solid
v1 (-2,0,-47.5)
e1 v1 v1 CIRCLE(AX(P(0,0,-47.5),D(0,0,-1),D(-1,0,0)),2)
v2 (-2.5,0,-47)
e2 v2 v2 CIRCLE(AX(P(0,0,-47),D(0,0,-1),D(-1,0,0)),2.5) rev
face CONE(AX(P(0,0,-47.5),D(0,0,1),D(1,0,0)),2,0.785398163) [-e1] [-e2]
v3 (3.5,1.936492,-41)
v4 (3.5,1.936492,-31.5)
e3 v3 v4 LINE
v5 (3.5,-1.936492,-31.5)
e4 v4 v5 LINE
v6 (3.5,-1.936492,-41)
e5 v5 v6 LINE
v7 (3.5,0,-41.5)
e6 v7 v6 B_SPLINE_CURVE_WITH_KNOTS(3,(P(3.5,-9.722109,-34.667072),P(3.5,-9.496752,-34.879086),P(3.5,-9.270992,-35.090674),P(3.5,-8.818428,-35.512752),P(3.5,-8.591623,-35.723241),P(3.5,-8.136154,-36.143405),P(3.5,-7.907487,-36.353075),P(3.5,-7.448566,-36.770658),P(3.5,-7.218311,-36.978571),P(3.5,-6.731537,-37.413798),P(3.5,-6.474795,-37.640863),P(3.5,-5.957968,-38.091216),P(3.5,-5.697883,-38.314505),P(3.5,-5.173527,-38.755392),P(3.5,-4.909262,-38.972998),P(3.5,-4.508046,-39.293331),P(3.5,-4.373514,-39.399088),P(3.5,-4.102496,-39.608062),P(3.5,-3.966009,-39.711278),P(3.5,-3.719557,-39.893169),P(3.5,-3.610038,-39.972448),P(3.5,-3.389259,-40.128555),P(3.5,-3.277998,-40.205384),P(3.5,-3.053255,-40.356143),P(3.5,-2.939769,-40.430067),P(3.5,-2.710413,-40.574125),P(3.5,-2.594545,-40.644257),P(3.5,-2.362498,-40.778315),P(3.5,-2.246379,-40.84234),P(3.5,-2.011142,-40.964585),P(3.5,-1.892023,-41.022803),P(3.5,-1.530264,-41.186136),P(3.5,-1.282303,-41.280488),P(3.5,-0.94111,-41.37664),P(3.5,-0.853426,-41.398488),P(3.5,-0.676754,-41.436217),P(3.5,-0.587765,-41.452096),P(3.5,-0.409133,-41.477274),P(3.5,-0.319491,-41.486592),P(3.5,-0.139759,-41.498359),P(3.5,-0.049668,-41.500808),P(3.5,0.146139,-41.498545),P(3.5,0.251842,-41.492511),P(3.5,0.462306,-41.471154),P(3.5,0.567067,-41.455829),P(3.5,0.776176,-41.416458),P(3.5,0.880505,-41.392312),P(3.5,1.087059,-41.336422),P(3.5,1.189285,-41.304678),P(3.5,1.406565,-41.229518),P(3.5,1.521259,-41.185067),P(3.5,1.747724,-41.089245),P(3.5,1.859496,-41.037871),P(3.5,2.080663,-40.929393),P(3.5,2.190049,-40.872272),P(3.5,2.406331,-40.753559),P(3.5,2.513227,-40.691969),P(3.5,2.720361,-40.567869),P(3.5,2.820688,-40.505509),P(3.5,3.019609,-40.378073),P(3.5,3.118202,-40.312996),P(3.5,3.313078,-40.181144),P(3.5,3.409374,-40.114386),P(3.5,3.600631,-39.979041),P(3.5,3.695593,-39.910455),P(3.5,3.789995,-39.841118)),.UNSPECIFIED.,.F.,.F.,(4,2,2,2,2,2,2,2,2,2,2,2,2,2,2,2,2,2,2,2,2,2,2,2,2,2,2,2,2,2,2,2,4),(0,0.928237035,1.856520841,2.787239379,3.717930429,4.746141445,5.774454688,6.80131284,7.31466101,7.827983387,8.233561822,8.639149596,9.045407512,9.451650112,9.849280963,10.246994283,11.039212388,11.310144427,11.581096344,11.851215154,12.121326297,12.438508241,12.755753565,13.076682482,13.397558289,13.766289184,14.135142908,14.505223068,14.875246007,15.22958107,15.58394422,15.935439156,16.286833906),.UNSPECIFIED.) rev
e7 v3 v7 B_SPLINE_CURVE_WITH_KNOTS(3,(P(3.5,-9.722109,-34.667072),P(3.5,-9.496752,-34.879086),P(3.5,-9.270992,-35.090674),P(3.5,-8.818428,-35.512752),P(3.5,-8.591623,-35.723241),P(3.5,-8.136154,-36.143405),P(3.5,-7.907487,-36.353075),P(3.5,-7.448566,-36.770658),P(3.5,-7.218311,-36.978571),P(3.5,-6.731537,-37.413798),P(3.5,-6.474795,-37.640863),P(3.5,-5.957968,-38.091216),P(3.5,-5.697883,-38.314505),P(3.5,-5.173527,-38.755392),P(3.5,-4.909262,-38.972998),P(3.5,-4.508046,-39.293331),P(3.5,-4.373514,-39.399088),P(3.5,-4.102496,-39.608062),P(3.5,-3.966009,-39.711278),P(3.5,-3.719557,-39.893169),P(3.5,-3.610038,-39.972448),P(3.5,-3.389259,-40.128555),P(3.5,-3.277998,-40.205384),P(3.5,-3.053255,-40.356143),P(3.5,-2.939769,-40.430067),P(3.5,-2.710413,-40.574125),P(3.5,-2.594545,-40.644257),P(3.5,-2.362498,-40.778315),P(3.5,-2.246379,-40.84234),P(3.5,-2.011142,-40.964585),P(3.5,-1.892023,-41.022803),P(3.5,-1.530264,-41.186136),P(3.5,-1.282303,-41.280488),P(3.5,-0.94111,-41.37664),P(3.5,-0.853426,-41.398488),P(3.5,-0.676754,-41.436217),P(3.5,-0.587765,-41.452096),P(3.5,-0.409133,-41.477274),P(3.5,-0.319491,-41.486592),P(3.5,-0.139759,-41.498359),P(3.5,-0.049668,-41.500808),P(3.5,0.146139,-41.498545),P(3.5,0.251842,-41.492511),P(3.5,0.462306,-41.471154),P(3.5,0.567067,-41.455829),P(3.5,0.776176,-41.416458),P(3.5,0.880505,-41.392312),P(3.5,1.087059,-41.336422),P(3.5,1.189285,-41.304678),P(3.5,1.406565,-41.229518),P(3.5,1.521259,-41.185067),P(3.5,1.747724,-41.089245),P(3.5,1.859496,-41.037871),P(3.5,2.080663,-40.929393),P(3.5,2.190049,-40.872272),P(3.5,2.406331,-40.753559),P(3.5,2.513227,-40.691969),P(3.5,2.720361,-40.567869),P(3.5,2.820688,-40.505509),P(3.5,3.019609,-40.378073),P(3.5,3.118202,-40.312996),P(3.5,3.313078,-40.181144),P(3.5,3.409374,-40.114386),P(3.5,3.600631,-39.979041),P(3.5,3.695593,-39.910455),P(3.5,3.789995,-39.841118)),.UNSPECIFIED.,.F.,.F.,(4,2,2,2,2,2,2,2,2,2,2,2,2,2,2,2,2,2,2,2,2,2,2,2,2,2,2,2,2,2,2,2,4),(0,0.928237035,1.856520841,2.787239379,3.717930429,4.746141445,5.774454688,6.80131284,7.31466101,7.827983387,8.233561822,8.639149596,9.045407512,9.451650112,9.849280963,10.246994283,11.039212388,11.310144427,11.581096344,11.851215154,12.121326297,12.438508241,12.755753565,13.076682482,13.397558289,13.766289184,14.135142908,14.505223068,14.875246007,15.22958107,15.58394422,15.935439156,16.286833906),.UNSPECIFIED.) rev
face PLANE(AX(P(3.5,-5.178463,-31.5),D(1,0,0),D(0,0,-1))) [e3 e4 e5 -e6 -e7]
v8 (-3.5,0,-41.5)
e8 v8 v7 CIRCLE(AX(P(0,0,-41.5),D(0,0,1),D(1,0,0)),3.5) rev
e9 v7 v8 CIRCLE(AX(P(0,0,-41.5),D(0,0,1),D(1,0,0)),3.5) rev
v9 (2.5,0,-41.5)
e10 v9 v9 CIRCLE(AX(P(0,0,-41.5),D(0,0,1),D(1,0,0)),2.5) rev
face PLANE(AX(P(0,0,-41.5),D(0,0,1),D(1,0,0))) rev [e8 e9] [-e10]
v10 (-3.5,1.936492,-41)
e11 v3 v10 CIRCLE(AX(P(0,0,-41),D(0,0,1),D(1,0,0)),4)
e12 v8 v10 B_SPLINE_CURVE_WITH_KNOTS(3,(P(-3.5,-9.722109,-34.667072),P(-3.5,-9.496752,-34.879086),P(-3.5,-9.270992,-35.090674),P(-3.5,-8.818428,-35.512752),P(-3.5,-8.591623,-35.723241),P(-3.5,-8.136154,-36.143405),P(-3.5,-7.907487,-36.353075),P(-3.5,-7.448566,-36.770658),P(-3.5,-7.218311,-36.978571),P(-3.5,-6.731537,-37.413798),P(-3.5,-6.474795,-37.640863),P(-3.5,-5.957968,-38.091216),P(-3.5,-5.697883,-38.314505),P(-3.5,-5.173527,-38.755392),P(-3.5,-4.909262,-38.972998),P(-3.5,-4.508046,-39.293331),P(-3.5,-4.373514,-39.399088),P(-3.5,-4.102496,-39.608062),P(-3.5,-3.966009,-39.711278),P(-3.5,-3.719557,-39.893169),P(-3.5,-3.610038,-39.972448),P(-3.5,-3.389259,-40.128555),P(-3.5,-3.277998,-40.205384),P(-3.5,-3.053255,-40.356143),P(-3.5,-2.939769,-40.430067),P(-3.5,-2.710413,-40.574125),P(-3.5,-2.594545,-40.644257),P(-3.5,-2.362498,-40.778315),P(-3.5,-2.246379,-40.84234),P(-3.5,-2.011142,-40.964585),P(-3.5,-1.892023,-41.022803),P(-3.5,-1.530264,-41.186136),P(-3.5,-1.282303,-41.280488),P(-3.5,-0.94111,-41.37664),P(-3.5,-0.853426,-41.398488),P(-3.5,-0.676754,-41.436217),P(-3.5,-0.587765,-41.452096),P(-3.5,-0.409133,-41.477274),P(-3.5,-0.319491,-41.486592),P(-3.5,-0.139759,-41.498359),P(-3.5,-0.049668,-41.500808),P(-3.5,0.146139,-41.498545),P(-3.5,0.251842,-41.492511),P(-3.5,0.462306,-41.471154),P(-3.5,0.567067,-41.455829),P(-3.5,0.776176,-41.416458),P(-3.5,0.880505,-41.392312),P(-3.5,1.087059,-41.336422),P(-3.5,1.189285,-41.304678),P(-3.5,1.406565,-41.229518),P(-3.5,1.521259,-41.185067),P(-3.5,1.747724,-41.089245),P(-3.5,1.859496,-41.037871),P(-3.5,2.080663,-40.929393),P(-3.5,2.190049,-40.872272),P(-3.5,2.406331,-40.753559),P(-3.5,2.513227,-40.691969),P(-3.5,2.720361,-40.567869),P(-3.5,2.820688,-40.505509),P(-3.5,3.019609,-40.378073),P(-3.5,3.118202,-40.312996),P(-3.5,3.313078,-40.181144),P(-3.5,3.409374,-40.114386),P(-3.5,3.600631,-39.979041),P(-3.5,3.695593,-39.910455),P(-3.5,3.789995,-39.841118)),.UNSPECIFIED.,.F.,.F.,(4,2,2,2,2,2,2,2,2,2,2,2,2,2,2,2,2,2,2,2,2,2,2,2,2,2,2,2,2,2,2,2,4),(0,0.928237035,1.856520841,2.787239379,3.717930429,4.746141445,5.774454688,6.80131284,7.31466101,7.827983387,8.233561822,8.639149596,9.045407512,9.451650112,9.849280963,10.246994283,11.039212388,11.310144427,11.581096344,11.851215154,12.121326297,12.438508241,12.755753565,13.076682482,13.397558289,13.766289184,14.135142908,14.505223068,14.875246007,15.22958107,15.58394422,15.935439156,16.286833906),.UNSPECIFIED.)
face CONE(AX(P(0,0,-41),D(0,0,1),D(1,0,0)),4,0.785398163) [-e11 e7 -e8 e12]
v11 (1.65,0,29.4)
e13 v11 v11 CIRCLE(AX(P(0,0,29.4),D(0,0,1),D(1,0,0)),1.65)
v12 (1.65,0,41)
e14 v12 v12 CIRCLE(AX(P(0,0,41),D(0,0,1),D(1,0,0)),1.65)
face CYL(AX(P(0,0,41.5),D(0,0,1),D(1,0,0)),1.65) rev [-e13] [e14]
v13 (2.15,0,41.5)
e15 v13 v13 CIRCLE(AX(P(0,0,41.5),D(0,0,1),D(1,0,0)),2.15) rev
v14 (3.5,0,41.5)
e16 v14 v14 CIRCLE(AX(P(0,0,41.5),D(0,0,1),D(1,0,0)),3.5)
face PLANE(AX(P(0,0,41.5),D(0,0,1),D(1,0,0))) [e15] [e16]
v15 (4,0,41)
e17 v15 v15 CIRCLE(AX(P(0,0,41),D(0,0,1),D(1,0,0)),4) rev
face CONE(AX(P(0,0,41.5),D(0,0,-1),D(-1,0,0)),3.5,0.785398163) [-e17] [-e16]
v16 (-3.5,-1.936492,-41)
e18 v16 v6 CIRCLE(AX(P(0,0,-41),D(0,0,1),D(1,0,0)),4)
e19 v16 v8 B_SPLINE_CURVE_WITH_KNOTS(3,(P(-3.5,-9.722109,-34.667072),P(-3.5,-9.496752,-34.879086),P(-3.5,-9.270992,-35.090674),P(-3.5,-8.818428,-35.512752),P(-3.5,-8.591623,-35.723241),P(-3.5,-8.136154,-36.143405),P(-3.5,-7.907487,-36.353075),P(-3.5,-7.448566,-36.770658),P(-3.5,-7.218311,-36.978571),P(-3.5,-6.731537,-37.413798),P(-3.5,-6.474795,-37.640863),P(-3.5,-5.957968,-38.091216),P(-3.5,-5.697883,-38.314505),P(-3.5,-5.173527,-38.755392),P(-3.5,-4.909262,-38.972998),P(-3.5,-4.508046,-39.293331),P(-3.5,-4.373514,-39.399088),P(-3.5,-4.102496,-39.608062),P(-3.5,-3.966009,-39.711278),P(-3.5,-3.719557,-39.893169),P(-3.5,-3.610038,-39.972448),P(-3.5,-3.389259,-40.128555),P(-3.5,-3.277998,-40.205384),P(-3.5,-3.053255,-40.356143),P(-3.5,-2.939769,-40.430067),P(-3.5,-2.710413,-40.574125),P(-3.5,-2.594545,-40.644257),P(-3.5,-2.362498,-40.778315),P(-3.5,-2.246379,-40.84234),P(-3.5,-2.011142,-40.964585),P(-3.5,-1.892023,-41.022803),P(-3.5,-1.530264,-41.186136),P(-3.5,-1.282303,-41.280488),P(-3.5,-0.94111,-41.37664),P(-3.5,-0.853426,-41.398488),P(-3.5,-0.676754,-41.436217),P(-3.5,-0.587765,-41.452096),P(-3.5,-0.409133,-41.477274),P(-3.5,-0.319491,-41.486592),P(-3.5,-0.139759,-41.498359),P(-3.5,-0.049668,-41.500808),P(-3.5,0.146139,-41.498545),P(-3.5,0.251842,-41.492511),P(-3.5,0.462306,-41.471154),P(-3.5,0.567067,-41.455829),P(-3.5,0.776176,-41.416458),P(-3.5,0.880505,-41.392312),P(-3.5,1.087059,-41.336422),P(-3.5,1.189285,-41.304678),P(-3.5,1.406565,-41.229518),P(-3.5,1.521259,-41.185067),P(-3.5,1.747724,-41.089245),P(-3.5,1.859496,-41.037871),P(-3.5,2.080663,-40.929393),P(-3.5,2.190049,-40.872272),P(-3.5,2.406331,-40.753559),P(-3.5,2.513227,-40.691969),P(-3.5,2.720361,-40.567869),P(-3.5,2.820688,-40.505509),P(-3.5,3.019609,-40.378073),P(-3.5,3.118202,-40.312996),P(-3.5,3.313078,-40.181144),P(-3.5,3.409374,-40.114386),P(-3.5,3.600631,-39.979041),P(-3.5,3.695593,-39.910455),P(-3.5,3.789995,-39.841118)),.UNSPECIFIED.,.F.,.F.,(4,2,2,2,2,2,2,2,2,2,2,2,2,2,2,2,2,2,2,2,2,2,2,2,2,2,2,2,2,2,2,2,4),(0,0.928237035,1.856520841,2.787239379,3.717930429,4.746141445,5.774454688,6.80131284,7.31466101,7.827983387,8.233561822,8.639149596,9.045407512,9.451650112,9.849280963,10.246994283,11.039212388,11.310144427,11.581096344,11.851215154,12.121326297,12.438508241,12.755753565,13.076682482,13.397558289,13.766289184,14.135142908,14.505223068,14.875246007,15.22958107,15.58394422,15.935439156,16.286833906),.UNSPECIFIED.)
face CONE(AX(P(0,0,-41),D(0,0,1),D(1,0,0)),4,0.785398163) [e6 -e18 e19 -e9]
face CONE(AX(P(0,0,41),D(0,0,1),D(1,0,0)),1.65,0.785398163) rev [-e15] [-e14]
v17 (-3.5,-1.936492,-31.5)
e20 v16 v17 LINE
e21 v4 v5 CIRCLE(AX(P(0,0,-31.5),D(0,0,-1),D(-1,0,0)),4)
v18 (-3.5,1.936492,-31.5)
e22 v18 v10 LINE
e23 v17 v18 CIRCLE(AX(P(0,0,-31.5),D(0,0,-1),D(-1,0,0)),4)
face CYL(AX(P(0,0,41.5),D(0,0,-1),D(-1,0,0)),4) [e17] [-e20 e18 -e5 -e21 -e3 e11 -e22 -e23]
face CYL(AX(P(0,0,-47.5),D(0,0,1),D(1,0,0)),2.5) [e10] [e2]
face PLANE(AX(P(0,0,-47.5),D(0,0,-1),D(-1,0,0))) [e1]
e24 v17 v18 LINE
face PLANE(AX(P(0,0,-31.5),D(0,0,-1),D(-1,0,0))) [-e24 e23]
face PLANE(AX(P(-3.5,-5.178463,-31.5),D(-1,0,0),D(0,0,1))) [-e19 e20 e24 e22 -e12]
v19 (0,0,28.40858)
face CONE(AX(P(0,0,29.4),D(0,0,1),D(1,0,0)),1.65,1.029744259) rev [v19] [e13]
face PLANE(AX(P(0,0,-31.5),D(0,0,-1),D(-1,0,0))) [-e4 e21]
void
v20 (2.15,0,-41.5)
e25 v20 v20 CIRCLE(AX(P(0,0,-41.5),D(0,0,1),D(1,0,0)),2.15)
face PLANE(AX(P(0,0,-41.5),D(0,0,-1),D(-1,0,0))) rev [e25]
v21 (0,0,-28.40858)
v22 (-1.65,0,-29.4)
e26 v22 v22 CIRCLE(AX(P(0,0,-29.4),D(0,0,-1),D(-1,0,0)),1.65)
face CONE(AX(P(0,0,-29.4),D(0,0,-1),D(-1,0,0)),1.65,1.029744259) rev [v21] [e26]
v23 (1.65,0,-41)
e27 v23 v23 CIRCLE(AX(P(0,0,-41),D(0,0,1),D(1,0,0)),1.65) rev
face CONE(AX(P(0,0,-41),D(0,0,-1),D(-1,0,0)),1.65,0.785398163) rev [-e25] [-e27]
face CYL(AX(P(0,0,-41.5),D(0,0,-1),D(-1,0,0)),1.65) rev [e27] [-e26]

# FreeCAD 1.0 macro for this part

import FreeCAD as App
import Part
import Sketcher
from FreeCAD import Vector
Q = App.Units.Quantity


def edges_at(feature, points):
    """Names of the edges that pass closest to the given points."""
    edges = feature.Shape.Edges
    near = lambda p: min(range(len(edges)), key=lambda i: edges[i].distToShape(Part.Vertex(*p))[0])
    return sorted({f"Edge{near(p) + 1}" for p in points})

doc = App.newDocument("Part")
body = doc.addObject("PartDesign::Body", "Body")

# Sketch on XY plane
sketch1 = doc.addObject("Sketcher::SketchObject", "Sketch")
body.addObject(sketch1)
sketch1.AttachmentSupport = (doc.XY_Plane, [""])
sketch1.MapMode = "FlatFace"
sketch1.addGeometry(Part.Circle(Vector(0, 0, 0), Vector(0, 0, 1), 4), False)
sketch1.addConstraint(Sketcher.Constraint("Coincident", 0, 3, -1, 1))
sketch1.addConstraint(Sketcher.Constraint("Diameter", 0, Q("8 mm")))
pad1 = doc.addObject("PartDesign::Pad", "Pad")
body.addObject(pad1)
pad1.Profile = sketch1
pad1.Length = 83
pad1.Midplane = True

# Sketch on XY plane
sketch2 = doc.addObject("Sketcher::SketchObject", "Sketch001")
body.addObject(sketch2)
sketch2.AttachmentSupport = (doc.XY_Plane, [""])
sketch2.MapMode = "FlatFace"
sketch2.AttachmentOffset = App.Placement(Vector(0, 0, 41.5), App.Rotation())
sketch2.addGeometry(Part.Circle(Vector(0, 0, 0), Vector(0, 0, 1), 1.6), False)
sketch2.addConstraint(Sketcher.Constraint("Coincident", 0, 3, -1, 1))
sketch2.addConstraint(Sketcher.Constraint("Diameter", 0, Q("3.3 mm")))
doc.recompute()
hole = doc.addObject("PartDesign::Hole", "Hole")
body.addObject(hole)
hole.Profile = sketch2
hole.ThreadType = "None"
hole.Diameter = 3.3
hole.DepthType = "Dimension"
hole.Depth = 12.1
hole.DrillPoint = "Angled"
hole.DrillPointAngle = 118

# Sketch on XY plane
sketch3 = doc.addObject("Sketcher::SketchObject", "Sketch002")
body.addObject(sketch3)
sketch3.AttachmentSupport = (doc.XY_Plane, [""])
sketch3.MapMode = "FlatFace"
sketch3.AttachmentOffset = App.Placement(Vector(0, 0, -41.5), App.Rotation())
sketch3.addGeometry(Part.Circle(Vector(0, 0, 0), Vector(0, 0, 1), 1.6), False)
sketch3.addConstraint(Sketcher.Constraint("Coincident", 0, 3, -1, 1))
sketch3.addConstraint(Sketcher.Constraint("Diameter", 0, Q("3.3 mm")))
doc.recompute()
hole2 = doc.addObject("PartDesign::Hole", "Hole001")
body.addObject(hole2)
hole2.Profile = sketch3
hole2.ThreadType = "None"
hole2.Diameter = 3.3
hole2.DepthType = "Dimension"
hole2.Depth = 12.1
hole2.DrillPoint = "Angled"
hole2.DrillPointAngle = 118
hole2.Reversed = True
doc.recompute()

chamfer = doc.addObject("PartDesign::Chamfer", "Chamfer")
body.addObject(chamfer)
chamfer.Base = (hole2, edges_at(hole2, [
    (-4, 0, -41.5),
    (-4, 0, 41.5),
    (-1.65, 0, -41.5),
    (1.65, 0, 41.5),
]))
chamfer.Size = 0.5

# Sketch on XY plane
sketch4 = doc.addObject("Sketcher::SketchObject", "Sketch003")
body.addObject(sketch4)
sketch4.AttachmentSupport = (doc.XY_Plane, [""])
sketch4.MapMode = "FlatFace"
sketch4.AttachmentOffset = App.Placement(Vector(0, 0, -41.5), App.Rotation())
sketch4.addGeometry(Part.Circle(Vector(0, 0, 0), Vector(0, 0, 1), 2.5), False)
sketch4.addConstraint(Sketcher.Constraint("Coincident", 0, 3, -1, 1))
sketch4.addConstraint(Sketcher.Constraint("Diameter", 0, Q("5 mm")))
pad2 = doc.addObject("PartDesign::Pad", "Pad001")
body.addObject(pad2)
pad2.Profile = sketch4
pad2.Length = 6
pad2.Reversed = True
doc.recompute()

chamfer2 = doc.addObject("PartDesign::Chamfer", "Chamfer001")
body.addObject(chamfer2)
chamfer2.Base = (pad2, edges_at(pad2, [(-2.5, 0, -47.5)]))
chamfer2.Size = 0.5

# Sketch on XY plane
sketch5 = doc.addObject("Sketcher::SketchObject", "Sketch004")
body.addObject(sketch5)
sketch5.AttachmentSupport = (doc.XY_Plane, [""])
sketch5.MapMode = "FlatFace"
sketch5.AttachmentOffset = App.Placement(Vector(0, 0, -41.5), App.Rotation())
sketch5.addGeometry(Part.LineSegment(Vector(14, 14, 0), Vector(14, -14, 0)), False)
sketch5.addGeometry(Part.LineSegment(Vector(14, -14, 0), Vector(-14, -14, 0)), False)
sketch5.addGeometry(Part.LineSegment(Vector(-14, -14, 0), Vector(-14, 14, 0)), False)
sketch5.addGeometry(Part.LineSegment(Vector(-14, 14, 0), Vector(14, 14, 0)), False)
sketch5.addGeometry(Part.LineSegment(Vector(-4, -5, 0), Vector(4, -5, 0)), False)
sketch5.addGeometry(Part.LineSegment(Vector(4, -5, 0), Vector(4, 5, 0)), False)
sketch5.addGeometry(Part.LineSegment(Vector(4, 5, 0), Vector(-4, 5, 0)), False)
sketch5.addGeometry(Part.LineSegment(Vector(-4, 5, 0), Vector(-4, -5, 0)), False)
sketch5.addConstraint(Sketcher.Constraint("Coincident", 0, 2, 1, 1))
sketch5.addConstraint(Sketcher.Constraint("Coincident", 1, 2, 2, 1))
sketch5.addConstraint(Sketcher.Constraint("Coincident", 2, 2, 3, 1))
sketch5.addConstraint(Sketcher.Constraint("Coincident", 3, 2, 0, 1))
sketch5.addConstraint(Sketcher.Constraint("Coincident", 4, 2, 5, 1))
sketch5.addConstraint(Sketcher.Constraint("Coincident", 5, 2, 6, 1))
sketch5.addConstraint(Sketcher.Constraint("Coincident", 6, 2, 7, 1))
sketch5.addConstraint(Sketcher.Constraint("Coincident", 7, 2, 4, 1))
sketch5.addConstraint(Sketcher.Constraint("Vertical", 0))
sketch5.addConstraint(Sketcher.Constraint("Horizontal", 1))
sketch5.addConstraint(Sketcher.Constraint("Vertical", 2))
sketch5.addConstraint(Sketcher.Constraint("Horizontal", 3))
sketch5.addConstraint(Sketcher.Constraint("Horizontal", 4))
sketch5.addConstraint(Sketcher.Constraint("Vertical", 5))
sketch5.addConstraint(Sketcher.Constraint("Horizontal", 6))
sketch5.addConstraint(Sketcher.Constraint("Vertical", 7))
sketch5.addConstraint(Sketcher.Constraint("Symmetric", 0, 2, 2, 2, -1, 1))
sketch5.addConstraint(Sketcher.Constraint("Symmetric", 4, 2, 6, 2, -1, 1))
sketch5.addConstraint(Sketcher.Constraint("Equal", 3, 0))
sketch5.addConstraint(Sketcher.Constraint("DistanceX", 4, 1, 4, 2, Q("7 mm")))
sketch5.addConstraint(Sketcher.Constraint("DistanceX", 1, 2, 1, 1, Q("27.944 mm")))
sketch5.addConstraint(Sketcher.Constraint("DistanceY", 5, 1, 5, 2, Q("10.356925 mm")))
pocket1 = doc.addObject("PartDesign::Pocket", "Pocket")
body.addObject(pocket1)
pocket1.Profile = sketch5
pocket1.Length = 10
pocket1.Reversed = True

doc.recompute()
